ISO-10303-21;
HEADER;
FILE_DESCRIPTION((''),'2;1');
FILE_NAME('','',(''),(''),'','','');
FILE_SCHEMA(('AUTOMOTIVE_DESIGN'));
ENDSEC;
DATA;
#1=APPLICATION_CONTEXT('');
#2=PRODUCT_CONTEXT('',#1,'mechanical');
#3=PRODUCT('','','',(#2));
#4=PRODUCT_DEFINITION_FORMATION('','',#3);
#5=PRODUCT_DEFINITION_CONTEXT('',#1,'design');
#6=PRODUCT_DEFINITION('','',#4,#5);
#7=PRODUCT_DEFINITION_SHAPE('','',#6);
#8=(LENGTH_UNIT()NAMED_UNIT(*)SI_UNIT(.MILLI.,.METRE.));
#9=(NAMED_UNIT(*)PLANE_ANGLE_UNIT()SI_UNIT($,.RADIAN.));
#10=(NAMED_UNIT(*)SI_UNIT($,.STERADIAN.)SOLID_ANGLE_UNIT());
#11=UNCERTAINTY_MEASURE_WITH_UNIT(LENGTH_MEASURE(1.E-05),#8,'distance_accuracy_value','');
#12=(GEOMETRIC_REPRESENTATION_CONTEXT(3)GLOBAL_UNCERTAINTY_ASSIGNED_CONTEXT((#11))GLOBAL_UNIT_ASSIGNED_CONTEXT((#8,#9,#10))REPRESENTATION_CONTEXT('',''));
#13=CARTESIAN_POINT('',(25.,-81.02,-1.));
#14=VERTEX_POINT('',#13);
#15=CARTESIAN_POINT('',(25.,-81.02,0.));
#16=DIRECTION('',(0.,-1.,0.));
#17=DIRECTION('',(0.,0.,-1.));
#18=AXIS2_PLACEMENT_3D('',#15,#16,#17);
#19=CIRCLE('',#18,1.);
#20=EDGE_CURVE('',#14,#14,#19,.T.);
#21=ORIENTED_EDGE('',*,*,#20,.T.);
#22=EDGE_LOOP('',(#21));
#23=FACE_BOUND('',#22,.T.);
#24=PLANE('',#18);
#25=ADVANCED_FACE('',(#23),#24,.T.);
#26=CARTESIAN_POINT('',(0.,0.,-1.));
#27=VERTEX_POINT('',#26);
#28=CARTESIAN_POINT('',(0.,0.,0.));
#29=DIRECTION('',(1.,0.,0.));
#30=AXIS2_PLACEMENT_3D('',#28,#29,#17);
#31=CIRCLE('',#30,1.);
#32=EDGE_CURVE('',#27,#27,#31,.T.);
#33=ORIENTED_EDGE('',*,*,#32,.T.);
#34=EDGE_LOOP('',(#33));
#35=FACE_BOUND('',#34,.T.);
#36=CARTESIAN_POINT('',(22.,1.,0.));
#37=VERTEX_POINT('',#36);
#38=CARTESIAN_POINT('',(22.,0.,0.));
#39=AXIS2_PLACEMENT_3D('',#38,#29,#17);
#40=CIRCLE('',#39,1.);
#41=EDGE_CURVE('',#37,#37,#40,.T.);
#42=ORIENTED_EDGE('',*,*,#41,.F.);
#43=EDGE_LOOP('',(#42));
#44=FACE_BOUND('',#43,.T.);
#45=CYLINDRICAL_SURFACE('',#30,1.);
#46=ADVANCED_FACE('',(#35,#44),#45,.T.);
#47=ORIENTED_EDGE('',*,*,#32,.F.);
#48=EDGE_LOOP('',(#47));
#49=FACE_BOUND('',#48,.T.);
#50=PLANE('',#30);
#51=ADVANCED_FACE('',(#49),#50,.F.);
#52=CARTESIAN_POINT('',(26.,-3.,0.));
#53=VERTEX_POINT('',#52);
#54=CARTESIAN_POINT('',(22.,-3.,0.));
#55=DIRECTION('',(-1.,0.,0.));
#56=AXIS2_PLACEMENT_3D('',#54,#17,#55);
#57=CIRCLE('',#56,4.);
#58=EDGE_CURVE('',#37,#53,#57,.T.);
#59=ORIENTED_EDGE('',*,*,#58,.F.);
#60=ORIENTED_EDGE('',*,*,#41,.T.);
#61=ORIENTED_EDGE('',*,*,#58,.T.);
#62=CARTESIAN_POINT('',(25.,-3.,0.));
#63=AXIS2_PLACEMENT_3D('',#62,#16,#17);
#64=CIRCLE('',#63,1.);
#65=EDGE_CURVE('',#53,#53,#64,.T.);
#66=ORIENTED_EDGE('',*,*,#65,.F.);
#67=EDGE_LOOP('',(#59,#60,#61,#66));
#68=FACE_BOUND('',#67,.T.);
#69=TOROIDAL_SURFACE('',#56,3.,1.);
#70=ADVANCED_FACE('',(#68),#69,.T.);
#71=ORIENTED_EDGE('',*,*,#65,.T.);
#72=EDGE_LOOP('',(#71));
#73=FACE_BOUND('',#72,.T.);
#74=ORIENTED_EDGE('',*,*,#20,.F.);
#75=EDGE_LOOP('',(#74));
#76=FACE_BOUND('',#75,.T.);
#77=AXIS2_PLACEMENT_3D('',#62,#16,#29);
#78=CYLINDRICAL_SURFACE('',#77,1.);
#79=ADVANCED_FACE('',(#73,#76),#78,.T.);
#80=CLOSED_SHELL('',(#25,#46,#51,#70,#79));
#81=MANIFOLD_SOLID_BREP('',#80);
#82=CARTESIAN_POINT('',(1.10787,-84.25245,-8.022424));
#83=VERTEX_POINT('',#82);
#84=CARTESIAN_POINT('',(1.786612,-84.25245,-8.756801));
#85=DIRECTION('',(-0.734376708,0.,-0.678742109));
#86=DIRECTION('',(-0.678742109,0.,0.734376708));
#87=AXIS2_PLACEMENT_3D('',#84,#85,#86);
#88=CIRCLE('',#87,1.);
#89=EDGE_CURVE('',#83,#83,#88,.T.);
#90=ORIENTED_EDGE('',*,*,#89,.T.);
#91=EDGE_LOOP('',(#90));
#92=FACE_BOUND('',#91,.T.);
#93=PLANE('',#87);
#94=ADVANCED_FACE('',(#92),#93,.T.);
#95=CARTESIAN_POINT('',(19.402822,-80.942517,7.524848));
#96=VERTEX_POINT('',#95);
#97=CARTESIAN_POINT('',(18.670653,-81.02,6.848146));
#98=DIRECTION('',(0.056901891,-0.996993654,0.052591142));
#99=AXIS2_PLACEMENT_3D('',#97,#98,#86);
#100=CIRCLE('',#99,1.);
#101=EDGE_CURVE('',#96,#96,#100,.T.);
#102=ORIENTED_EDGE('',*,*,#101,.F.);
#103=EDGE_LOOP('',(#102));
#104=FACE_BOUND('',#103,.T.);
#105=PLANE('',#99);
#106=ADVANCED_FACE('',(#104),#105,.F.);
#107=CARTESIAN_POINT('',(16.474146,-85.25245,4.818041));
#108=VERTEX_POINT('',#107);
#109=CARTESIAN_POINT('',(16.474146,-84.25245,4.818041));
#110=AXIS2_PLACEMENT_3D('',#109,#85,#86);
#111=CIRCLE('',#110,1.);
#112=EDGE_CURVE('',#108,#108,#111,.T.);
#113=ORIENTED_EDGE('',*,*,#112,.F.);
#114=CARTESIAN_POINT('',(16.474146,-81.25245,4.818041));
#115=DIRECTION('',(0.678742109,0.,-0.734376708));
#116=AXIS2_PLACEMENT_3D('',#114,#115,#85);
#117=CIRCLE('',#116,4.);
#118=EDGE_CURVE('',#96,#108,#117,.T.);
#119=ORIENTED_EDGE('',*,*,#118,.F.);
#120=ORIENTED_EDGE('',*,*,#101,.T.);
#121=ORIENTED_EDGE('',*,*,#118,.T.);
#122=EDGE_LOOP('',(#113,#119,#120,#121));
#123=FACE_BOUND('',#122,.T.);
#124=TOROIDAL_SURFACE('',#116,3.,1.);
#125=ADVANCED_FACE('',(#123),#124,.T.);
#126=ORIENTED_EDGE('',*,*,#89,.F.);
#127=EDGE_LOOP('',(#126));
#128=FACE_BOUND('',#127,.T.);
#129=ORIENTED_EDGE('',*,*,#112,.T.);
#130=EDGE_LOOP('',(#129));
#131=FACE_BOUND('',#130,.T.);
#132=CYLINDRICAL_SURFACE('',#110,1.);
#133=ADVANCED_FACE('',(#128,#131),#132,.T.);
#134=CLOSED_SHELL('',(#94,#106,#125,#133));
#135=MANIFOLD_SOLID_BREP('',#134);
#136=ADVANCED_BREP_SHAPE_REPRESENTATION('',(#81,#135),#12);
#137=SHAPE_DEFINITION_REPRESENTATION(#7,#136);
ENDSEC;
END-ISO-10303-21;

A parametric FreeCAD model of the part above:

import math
import FreeCAD as App
import Part
import Sketcher

doc = App.newDocument("Part")
body = doc.addObject("PartDesign::Body", "Body")

# Sketch on YZ plane
sketch1 = body.newObject("Sketcher::SketchObject", "Sketch")
sketch1.AttachmentSupport = (doc.getObject("YZ_Plane"), [""])
sketch1.MapMode = "FlatFace"
sketch1.addGeometry(Part.Circle(App.Vector(0, 0, 0), App.Vector(0, 0, 1), 1), False)
sketch1.addConstraint(Sketcher.Constraint("Coincident", 0, 3, -1, 1))
sketch1.addConstraint(Sketcher.Constraint("Diameter", 0, 2.0))

# Sketch on XY plane
sketch2 = body.newObject("Sketcher::SketchObject", "Sketch001")
sketch2.AttachmentSupport = (doc.getObject("XY_Plane"), [""])
sketch2.MapMode = "FlatFace"
sketch2.addGeometry(Part.LineSegment(App.Vector(0, 0, 0), App.Vector(22, 0, 0)), False)
sketch2.addGeometry(Part.ArcOfCircle(Part.Circle(App.Vector(22, -3, 0), App.Vector(0, 0, 1), 3), math.radians(0), math.radians(90)), False)
sketch2.addGeometry(Part.LineSegment(App.Vector(25, -3, 0), App.Vector(25, -81, 0)), False)
sketch2.addConstraint(Sketcher.Constraint("Tangent", 0, 2, 1, 2))
sketch2.addConstraint(Sketcher.Constraint("Tangent", 1, 1, 2, 1))
sketch2.addConstraint(Sketcher.Constraint("Horizontal", 0))
sketch2.addConstraint(Sketcher.Constraint("Vertical", 2))
sketch2.addConstraint(Sketcher.Constraint("Coincident", 0, 1, -1, 1))
sketch2.addConstraint(Sketcher.Constraint("Radius", 1, 3.0))
sketch2.addConstraint(Sketcher.Constraint("DistanceX", 0, 1, 0, 2, 22.0))
sketch2.addConstraint(Sketcher.Constraint("DistanceY", 2, 2, 2, 1, 78.02))
doc.recompute()

additivepipe = body.newObject("PartDesign::AdditivePipe", "AdditivePipe")
additivepipe.Profile = sketch1
additivepipe.Spine = (sketch2, ["Edge1", "Edge2", "Edge3"])
body2 = doc.addObject("PartDesign::Body", "Body001")

# Sketch on an angled plane
sketch3 = body2.newObject("Sketcher::SketchObject", "Sketch002")
sketch3.Placement = App.Placement(App.Vector(1.786612, -84.25245, -8.756801), App.Rotation(App.Vector(-0.678742109, 0, 0.734376708), App.Vector(0, 1, 0), App.Vector(-0.734376708, 0, -0.678742109), "ZXY"))
sketch3.addGeometry(Part.Circle(App.Vector(0, 0, 0), App.Vector(0, 0, 1), 1), False)
sketch3.addConstraint(Sketcher.Constraint("Coincident", 0, 3, -1, 1))
sketch3.addConstraint(Sketcher.Constraint("Diameter", 0, 2.0))

# Sketch on an angled plane
sketch4 = body2.newObject("Sketcher::SketchObject", "Sketch003")
sketch4.Placement = App.Placement(App.Vector(5.187924, 0, -5.613164), App.Rotation(App.Vector(0.734376708, 0, 0.678742109), App.Vector(0, 1, 0), App.Vector(-0.678742109, 0, 0.734376708), "ZXY"))
sketch4.addGeometry(Part.LineSegment(App.Vector(-4.6, -84.3, 0), App.Vector(15.4, -84.3, 0)), False)
sketch4.addGeometry(Part.ArcOfCircle(Part.Circle(App.Vector(15.4, -81.3, 0), App.Vector(0, 0, 1), 3), math.radians(-90), math.radians(4)), False)
sketch4.addConstraint(Sketcher.Constraint("Tangent", 0, 2, 1, 1))
sketch4.addConstraint(Sketcher.Constraint("Horizontal", 0))
sketch4.addConstraint(Sketcher.Constraint("Radius", 1, 3.0))
sketch4.addConstraint(Sketcher.Constraint("DistanceX", 0, 1, 0, 2, 20.0))
sketch4.addConstraint(Sketcher.Constraint("DistanceY", 1, 2, -1, 1, 81.02))
sketch4.addConstraint(Sketcher.Constraint("DistanceY", 1, 3, -1, 1, 81.25245))
sketch4.addConstraint(Sketcher.Constraint("DistanceX", -1, 1, 1, 3, 15.368437))
doc.recompute()

additivepipe2 = body2.newObject("PartDesign::AdditivePipe", "AdditivePipe001")
additivepipe2.Profile = sketch3
additivepipe2.Spine = (sketch4, ["Edge1", "Edge2"])

doc.recompute()
